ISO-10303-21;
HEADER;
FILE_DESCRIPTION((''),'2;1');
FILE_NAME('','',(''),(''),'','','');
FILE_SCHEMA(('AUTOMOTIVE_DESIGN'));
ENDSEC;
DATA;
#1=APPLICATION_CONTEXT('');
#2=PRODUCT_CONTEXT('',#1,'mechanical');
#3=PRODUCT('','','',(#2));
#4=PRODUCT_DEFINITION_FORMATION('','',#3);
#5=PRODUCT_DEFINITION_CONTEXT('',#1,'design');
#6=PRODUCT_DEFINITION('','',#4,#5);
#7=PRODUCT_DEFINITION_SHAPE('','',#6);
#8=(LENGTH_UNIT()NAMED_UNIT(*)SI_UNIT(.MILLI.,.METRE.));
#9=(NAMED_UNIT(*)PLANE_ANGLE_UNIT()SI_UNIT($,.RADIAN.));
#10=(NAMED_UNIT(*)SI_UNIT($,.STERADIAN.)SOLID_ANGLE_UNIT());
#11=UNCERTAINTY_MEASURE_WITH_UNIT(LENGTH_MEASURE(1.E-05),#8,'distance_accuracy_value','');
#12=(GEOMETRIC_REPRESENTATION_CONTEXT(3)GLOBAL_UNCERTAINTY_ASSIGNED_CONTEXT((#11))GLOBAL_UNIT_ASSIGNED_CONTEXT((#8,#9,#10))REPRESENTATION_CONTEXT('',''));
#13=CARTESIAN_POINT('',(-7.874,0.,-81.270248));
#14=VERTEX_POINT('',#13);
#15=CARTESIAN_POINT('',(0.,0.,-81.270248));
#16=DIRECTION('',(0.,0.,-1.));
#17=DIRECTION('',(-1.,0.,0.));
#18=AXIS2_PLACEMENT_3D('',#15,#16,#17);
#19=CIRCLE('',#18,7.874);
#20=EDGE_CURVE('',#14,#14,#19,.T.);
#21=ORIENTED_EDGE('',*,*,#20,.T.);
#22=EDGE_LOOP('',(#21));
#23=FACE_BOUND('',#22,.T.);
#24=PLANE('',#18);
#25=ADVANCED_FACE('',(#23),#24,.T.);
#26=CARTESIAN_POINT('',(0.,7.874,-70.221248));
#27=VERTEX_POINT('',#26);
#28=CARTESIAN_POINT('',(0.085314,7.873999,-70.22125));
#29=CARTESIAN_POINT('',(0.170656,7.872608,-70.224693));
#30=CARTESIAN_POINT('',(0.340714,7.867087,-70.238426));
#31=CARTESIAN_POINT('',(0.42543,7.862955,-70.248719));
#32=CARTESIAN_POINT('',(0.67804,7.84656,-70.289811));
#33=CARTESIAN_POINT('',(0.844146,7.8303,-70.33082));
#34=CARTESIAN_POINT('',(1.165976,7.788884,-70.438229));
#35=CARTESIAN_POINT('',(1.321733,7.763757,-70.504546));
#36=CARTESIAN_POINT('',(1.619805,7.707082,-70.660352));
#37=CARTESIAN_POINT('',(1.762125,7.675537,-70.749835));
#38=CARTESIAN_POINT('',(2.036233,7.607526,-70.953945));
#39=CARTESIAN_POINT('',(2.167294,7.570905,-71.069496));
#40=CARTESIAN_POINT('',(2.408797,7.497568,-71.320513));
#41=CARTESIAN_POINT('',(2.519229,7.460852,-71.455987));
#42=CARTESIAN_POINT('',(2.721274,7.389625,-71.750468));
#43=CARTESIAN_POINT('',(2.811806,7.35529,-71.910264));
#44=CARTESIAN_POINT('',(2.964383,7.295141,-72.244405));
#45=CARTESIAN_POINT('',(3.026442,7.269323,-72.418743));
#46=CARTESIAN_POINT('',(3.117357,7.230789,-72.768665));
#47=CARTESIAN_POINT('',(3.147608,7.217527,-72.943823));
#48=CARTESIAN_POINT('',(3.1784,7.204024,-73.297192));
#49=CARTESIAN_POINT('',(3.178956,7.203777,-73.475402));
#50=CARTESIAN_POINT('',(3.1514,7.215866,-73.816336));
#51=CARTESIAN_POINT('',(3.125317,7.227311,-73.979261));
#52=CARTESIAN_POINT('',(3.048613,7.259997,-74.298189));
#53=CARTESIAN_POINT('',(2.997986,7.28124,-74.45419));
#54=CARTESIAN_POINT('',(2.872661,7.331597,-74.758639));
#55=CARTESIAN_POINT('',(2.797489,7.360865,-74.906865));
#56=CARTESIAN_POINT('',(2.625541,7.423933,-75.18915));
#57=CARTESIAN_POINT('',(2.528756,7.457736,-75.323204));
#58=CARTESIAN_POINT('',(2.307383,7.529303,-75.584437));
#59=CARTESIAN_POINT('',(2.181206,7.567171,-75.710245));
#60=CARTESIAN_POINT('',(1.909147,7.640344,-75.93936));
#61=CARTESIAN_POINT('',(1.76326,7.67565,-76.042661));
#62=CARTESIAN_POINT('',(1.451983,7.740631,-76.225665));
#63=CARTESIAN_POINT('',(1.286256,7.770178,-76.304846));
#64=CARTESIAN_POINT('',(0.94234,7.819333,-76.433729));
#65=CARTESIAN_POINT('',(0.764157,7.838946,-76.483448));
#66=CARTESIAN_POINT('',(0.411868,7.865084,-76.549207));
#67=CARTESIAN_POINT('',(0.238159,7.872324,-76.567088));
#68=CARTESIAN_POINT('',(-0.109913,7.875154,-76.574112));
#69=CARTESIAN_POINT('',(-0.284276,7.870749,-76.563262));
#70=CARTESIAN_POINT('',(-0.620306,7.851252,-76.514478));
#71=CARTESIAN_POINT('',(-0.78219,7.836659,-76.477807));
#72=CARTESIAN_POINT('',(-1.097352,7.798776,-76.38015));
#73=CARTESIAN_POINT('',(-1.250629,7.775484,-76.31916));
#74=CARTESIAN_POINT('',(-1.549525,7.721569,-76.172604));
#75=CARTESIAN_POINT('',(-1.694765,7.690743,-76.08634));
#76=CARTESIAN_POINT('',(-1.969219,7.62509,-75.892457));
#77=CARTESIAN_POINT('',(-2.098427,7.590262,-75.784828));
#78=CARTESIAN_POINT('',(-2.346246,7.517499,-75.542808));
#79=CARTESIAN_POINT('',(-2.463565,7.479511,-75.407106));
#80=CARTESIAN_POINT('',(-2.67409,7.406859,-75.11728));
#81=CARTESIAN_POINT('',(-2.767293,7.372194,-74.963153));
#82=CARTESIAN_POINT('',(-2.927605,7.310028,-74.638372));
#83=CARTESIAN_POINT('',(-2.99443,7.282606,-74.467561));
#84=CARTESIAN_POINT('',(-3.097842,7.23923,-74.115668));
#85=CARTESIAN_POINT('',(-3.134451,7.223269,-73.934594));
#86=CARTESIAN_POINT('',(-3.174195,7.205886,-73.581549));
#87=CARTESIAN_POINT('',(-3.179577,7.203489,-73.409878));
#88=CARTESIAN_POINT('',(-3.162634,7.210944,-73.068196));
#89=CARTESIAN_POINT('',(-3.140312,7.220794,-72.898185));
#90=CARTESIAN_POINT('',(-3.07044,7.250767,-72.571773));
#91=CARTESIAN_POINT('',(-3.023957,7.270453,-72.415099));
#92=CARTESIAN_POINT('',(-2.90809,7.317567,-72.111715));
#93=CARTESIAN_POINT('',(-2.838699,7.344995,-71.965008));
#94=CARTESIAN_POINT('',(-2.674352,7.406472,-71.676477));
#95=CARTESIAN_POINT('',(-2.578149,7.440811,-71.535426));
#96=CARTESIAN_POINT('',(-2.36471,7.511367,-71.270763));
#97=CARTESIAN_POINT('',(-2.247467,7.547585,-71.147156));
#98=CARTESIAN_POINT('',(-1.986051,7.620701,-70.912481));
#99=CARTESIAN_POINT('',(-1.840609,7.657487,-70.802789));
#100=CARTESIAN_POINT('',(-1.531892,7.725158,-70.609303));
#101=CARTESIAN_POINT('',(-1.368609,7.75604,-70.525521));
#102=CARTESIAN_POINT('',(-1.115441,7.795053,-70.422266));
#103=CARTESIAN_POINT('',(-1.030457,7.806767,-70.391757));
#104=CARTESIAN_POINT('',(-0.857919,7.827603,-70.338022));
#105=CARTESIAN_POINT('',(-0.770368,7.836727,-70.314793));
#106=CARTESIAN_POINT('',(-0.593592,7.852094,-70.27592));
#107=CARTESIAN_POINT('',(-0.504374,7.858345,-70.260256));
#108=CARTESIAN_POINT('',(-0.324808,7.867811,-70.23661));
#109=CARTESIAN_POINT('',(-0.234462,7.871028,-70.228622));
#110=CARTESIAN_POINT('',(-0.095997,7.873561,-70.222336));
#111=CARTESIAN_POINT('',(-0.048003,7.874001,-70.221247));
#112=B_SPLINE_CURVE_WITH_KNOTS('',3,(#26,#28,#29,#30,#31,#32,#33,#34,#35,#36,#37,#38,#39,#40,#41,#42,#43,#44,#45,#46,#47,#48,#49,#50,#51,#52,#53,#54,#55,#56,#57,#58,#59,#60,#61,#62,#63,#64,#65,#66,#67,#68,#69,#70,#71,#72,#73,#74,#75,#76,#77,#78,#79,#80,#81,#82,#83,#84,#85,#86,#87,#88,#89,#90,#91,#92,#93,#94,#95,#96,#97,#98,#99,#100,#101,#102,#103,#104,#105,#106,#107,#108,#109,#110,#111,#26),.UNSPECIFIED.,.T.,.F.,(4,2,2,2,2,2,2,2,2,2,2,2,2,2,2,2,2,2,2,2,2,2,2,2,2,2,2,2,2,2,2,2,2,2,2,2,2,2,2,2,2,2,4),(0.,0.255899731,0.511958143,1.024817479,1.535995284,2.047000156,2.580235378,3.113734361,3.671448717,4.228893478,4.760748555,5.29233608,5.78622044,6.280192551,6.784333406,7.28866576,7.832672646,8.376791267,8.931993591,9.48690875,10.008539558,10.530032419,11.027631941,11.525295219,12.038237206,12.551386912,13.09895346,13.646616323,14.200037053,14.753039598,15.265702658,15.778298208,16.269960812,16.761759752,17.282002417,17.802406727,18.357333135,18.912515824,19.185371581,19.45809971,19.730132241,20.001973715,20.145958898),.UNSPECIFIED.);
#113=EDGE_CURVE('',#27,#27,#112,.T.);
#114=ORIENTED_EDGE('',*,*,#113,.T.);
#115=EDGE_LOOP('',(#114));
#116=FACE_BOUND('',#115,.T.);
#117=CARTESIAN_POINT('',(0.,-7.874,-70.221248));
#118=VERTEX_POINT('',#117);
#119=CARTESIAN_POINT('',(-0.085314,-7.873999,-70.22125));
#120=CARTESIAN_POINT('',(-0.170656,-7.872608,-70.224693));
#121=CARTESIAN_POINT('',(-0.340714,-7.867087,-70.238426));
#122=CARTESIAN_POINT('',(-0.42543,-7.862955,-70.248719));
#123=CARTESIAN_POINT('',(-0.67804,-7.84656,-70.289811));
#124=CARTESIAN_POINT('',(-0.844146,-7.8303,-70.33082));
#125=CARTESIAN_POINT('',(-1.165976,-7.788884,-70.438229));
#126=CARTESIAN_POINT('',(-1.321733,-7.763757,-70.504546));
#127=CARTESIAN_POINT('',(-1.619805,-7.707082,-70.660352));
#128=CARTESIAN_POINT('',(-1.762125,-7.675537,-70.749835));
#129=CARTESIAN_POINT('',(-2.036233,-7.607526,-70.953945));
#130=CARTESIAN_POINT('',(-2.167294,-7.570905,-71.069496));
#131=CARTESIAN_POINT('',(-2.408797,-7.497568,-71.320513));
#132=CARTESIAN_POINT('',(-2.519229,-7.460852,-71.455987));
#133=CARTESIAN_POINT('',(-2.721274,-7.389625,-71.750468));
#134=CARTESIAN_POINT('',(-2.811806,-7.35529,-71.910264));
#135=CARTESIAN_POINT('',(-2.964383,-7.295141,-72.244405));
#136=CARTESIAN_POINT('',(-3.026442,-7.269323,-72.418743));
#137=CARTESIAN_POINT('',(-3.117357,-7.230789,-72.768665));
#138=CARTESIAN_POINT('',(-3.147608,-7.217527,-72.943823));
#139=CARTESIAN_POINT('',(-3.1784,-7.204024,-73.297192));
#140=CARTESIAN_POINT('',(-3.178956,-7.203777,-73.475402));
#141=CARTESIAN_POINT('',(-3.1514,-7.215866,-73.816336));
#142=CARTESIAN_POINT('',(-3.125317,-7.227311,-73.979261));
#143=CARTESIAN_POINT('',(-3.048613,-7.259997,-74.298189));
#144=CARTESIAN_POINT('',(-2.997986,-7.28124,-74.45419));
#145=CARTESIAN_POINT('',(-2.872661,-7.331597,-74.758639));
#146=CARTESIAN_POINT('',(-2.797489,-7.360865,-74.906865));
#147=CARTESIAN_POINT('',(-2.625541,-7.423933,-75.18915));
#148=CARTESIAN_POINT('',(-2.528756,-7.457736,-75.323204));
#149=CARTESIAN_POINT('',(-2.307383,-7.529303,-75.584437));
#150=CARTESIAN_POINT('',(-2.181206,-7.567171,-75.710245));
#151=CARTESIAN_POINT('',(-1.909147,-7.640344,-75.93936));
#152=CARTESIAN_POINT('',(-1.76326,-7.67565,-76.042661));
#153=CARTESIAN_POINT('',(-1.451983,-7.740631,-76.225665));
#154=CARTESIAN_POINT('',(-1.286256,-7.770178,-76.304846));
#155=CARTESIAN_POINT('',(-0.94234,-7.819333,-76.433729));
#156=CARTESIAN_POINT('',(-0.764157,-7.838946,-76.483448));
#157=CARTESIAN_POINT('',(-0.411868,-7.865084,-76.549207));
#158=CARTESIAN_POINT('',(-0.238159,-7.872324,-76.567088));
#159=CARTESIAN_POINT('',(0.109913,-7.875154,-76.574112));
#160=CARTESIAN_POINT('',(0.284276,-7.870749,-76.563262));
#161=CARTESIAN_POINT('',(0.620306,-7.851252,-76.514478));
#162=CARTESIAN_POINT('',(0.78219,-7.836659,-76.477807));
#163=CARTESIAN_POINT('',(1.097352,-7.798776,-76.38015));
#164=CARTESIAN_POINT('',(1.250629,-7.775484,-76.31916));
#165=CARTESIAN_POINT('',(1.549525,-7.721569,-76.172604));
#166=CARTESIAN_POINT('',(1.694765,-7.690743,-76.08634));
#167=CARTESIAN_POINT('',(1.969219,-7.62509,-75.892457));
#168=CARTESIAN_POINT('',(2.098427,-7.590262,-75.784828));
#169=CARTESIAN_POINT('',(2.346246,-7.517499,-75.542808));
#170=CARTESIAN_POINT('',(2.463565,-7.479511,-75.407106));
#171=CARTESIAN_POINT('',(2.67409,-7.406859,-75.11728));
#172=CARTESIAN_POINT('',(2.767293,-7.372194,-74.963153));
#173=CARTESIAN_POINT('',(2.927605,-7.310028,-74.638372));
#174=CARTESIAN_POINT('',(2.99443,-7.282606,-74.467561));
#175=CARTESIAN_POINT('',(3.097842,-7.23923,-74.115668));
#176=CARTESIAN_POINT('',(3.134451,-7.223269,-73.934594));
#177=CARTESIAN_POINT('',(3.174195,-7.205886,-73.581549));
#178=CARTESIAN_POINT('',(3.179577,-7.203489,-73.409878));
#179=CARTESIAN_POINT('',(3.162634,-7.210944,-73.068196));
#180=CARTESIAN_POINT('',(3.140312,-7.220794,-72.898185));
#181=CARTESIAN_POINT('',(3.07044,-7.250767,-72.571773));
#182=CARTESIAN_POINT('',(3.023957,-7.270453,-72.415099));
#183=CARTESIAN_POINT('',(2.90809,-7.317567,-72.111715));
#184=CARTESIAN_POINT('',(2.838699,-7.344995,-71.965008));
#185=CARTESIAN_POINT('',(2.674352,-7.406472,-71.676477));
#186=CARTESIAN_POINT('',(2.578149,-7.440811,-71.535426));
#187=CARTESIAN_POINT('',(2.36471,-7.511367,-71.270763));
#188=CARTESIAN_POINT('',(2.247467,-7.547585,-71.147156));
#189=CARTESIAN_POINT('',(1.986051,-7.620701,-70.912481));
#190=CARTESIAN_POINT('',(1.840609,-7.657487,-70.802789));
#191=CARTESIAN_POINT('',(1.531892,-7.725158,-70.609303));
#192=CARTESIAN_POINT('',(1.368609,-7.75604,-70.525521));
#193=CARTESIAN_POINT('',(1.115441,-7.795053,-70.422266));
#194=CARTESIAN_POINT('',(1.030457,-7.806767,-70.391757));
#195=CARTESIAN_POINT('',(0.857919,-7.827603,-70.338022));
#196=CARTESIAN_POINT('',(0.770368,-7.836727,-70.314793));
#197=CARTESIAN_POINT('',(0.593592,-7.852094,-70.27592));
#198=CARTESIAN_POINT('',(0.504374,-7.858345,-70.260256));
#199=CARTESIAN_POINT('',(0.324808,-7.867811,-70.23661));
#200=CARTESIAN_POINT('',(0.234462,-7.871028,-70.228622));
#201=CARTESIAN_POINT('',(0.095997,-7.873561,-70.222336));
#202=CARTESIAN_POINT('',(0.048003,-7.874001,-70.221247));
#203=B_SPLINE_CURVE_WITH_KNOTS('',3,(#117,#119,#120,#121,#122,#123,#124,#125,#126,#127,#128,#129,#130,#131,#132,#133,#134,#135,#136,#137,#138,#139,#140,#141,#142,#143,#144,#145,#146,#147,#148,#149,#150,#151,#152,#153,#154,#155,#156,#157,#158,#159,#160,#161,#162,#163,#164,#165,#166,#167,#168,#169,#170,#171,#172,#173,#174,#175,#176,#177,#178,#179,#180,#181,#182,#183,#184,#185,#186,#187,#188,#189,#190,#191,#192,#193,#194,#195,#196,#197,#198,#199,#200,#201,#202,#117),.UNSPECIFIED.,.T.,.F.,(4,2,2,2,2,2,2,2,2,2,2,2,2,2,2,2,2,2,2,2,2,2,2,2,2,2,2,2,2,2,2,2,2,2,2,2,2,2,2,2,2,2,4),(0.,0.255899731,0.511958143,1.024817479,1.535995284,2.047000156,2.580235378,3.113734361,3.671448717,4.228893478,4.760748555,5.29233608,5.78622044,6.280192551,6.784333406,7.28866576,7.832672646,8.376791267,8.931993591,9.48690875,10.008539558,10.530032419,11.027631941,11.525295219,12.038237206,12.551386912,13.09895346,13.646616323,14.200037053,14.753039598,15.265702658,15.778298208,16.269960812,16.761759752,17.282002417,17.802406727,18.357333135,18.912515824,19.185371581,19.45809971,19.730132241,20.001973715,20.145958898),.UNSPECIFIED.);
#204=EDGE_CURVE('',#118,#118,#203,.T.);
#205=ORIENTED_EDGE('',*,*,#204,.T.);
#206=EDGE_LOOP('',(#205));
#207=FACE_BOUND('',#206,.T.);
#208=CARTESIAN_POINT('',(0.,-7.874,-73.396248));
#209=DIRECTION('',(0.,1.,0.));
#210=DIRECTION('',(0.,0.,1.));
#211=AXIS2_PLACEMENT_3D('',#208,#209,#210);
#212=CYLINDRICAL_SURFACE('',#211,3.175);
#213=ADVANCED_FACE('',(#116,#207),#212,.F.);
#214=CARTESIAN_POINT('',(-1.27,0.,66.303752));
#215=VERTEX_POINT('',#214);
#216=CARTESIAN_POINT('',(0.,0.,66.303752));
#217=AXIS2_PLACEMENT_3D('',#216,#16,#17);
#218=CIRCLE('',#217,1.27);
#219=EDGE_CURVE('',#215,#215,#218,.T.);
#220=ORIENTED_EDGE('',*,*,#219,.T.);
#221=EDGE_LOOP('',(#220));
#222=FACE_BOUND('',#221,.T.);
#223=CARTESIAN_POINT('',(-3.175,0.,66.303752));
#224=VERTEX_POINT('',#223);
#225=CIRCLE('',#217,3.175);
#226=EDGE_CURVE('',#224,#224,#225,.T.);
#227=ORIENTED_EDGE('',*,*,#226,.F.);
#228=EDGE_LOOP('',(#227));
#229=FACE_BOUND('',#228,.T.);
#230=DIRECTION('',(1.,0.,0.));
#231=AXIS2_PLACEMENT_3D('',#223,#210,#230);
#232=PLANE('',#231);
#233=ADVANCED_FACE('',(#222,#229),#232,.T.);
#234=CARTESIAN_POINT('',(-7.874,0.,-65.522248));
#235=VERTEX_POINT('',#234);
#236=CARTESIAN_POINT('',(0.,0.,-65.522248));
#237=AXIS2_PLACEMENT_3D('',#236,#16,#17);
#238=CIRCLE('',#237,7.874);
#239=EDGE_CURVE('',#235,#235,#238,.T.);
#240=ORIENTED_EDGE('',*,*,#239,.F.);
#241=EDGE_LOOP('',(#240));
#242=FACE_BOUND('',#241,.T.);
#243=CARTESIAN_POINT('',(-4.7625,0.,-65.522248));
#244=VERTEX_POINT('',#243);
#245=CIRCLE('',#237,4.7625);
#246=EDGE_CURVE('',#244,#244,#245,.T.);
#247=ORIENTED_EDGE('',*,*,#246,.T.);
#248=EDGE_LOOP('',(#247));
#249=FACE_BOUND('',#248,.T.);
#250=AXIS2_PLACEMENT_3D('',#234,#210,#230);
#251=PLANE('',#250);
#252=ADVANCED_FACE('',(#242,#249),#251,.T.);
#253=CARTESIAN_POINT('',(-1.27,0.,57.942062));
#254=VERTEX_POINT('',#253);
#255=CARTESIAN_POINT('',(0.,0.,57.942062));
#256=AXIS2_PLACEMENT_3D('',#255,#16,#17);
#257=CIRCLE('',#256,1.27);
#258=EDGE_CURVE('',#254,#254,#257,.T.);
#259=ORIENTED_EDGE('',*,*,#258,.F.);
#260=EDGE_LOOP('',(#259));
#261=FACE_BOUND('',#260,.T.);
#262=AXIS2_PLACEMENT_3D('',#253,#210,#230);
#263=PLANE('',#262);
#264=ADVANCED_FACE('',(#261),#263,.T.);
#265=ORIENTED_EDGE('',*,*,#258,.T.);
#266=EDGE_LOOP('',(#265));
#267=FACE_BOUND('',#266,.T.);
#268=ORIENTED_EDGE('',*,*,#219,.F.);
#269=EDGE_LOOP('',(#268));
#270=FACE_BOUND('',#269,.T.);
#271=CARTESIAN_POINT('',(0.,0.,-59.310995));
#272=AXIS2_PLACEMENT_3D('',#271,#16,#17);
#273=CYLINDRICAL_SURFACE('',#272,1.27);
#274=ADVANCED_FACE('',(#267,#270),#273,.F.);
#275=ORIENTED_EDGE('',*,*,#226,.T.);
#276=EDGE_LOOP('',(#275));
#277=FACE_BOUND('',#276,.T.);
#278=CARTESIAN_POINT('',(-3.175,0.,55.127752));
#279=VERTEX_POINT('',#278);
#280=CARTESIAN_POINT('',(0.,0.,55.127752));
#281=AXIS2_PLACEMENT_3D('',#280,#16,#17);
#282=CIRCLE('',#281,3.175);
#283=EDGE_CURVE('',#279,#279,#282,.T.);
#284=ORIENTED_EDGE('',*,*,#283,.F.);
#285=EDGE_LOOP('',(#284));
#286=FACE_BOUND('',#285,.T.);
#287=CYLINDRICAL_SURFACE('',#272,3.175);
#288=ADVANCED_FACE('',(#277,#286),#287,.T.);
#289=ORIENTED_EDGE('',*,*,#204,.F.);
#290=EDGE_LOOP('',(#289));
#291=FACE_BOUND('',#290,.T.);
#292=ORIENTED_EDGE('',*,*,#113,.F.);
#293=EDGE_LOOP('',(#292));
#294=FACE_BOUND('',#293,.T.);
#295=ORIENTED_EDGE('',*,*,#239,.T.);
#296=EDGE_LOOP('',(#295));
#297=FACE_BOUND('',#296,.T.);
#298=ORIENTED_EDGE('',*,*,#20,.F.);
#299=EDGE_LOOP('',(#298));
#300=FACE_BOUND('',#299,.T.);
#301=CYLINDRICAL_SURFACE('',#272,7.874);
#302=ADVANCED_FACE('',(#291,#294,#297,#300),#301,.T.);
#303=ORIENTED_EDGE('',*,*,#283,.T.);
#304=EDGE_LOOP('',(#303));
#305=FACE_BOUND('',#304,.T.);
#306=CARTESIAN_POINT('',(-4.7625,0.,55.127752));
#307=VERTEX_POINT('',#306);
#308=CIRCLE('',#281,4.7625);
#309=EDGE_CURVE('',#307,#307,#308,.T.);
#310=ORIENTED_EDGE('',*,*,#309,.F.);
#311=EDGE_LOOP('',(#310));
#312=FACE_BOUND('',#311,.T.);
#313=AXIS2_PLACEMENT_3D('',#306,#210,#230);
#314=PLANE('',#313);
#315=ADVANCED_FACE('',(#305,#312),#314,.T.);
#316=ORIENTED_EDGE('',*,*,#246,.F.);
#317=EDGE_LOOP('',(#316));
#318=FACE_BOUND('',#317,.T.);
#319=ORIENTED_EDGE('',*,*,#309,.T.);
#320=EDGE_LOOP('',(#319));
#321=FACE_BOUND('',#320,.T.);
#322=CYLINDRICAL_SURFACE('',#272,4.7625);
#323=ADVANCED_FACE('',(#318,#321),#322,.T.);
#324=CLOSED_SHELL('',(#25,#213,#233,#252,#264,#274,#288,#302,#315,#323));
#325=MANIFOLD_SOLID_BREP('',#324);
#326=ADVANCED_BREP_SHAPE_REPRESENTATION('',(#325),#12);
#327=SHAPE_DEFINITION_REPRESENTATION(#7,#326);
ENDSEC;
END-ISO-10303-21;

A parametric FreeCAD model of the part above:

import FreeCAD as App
import Part
import Sketcher
Q = App.Units.Quantity

doc = App.newDocument("Part")
body = doc.addObject("PartDesign::Body", "Body")

# Sketch on XZ plane
sketch1 = body.newObject("Sketcher::SketchObject", "Sketch")
sketch1.AttachmentSupport = (doc.getObject("XZ_Plane"), [""])
sketch1.MapMode = "FlatFace"
sketch1.addGeometry([
    Part.LineSegment(App.Vector(0, -81.3, 0), App.Vector(-7.9, -81.3, 0)),  # 0
    Part.LineSegment(App.Vector(-7.9, -81.3, 0), App.Vector(-7.9, -65.5, 0)),  # 1
    Part.LineSegment(App.Vector(-7.9, -65.5, 0), App.Vector(-4.8, -65.5, 0)),  # 2
    Part.LineSegment(App.Vector(-4.8, -65.5, 0), App.Vector(-4.8, 55.1, 0)),  # 3
    Part.LineSegment(App.Vector(-4.8, 55.1, 0), App.Vector(-3.2, 55.1, 0)),  # 4
    Part.LineSegment(App.Vector(-3.2, 55.1, 0), App.Vector(-3.2, 66.3, 0)),  # 5
    Part.LineSegment(App.Vector(-3.2, 66.3, 0), App.Vector(-1.3, 66.3, 0)),  # 6
    Part.LineSegment(App.Vector(-1.3, 66.3, 0), App.Vector(-1.3, 57.9, 0)),  # 7
    Part.LineSegment(App.Vector(-1.3, 57.9, 0), App.Vector(0, 57.9, 0)),  # 8
    Part.LineSegment(App.Vector(0, 57.9, 0), App.Vector(0, -81.3, 0)),  # 9
], False)
sketch1.addConstraint([
    Sketcher.Constraint("Coincident", 0, 2, 1, 1),
    Sketcher.Constraint("Coincident", 1, 2, 2, 1),
    Sketcher.Constraint("Coincident", 2, 2, 3, 1),
    Sketcher.Constraint("Coincident", 3, 2, 4, 1),
    Sketcher.Constraint("Coincident", 4, 2, 5, 1),
    Sketcher.Constraint("Coincident", 5, 2, 6, 1),
    Sketcher.Constraint("Coincident", 6, 2, 7, 1),
    Sketcher.Constraint("Coincident", 7, 2, 8, 1),
    Sketcher.Constraint("Coincident", 8, 2, 9, 1),
    Sketcher.Constraint("Coincident", 9, 2, 0, 1),
    Sketcher.Constraint("Horizontal", 0),
    Sketcher.Constraint("Vertical", 1),
    Sketcher.Constraint("Horizontal", 2),
    Sketcher.Constraint("Vertical", 3),
    Sketcher.Constraint("Horizontal", 4),
    Sketcher.Constraint("Vertical", 5),
    Sketcher.Constraint("Horizontal", 6),
    Sketcher.Constraint("Vertical", 7),
    Sketcher.Constraint("Horizontal", 8),
    Sketcher.Constraint("Vertical", 9),
    Sketcher.Constraint("PointOnObject", 8, 2, -2),
    Sketcher.Constraint("DistanceX", 0, 2, 0, 1, Q("0.31 in")),
    Sketcher.Constraint("DistanceX", 8, 1, 8, 2, Q("0.05 in")),
    Sketcher.Constraint("DistanceY", 1, 1, 1, 2, Q("0.62 in")),
    Sketcher.Constraint("DistanceY", 3, 1, 3, 2, Q("4.75 in")),
    Sketcher.Constraint("DistanceY", 5, 1, 5, 2, Q("0.44 in")),
    Sketcher.Constraint("DistanceX", 4, 1, 4, 2, Q("0.0625 in")),
    Sketcher.Constraint("DistanceX", 6, 1, 6, 2, Q("0.075 in")),
    Sketcher.Constraint("DistanceY", 7, 2, 7, 1, 8.36169),
    Sketcher.Constraint("DistanceY", 0, 2, -1, 1, 81.270248),
])
revolution = body.newObject("PartDesign::Revolution", "Revolution")
revolution.Profile = sketch1
revolution.ReferenceAxis = (sketch1, ["V_Axis"])
revolution.Angle = 360

# Sketch on XZ plane
sketch2 = body.newObject("Sketcher::SketchObject", "Sketch001")
sketch2.AttachmentSupport = (doc.getObject("XZ_Plane"), [""])
sketch2.MapMode = "FlatFace"
sketch2.addGeometry(Part.Circle(App.Vector(0, -73.4, 0), App.Vector(0, 0, 1), 3.2), False)
sketch2.addConstraint([
    Sketcher.Constraint("PointOnObject", 0, 3, -2),
    Sketcher.Constraint("Diameter", 0, Q("0.25 in")),
    Sketcher.Constraint("DistanceY", 0, 3, -1, 1, 73.396248),
])
pocket1 = body.newObject("PartDesign::Pocket", "Pocket")
pocket1.Profile = sketch2
pocket1.Type = "ThroughAll"
pocket1.Midplane = True

doc.recompute()
